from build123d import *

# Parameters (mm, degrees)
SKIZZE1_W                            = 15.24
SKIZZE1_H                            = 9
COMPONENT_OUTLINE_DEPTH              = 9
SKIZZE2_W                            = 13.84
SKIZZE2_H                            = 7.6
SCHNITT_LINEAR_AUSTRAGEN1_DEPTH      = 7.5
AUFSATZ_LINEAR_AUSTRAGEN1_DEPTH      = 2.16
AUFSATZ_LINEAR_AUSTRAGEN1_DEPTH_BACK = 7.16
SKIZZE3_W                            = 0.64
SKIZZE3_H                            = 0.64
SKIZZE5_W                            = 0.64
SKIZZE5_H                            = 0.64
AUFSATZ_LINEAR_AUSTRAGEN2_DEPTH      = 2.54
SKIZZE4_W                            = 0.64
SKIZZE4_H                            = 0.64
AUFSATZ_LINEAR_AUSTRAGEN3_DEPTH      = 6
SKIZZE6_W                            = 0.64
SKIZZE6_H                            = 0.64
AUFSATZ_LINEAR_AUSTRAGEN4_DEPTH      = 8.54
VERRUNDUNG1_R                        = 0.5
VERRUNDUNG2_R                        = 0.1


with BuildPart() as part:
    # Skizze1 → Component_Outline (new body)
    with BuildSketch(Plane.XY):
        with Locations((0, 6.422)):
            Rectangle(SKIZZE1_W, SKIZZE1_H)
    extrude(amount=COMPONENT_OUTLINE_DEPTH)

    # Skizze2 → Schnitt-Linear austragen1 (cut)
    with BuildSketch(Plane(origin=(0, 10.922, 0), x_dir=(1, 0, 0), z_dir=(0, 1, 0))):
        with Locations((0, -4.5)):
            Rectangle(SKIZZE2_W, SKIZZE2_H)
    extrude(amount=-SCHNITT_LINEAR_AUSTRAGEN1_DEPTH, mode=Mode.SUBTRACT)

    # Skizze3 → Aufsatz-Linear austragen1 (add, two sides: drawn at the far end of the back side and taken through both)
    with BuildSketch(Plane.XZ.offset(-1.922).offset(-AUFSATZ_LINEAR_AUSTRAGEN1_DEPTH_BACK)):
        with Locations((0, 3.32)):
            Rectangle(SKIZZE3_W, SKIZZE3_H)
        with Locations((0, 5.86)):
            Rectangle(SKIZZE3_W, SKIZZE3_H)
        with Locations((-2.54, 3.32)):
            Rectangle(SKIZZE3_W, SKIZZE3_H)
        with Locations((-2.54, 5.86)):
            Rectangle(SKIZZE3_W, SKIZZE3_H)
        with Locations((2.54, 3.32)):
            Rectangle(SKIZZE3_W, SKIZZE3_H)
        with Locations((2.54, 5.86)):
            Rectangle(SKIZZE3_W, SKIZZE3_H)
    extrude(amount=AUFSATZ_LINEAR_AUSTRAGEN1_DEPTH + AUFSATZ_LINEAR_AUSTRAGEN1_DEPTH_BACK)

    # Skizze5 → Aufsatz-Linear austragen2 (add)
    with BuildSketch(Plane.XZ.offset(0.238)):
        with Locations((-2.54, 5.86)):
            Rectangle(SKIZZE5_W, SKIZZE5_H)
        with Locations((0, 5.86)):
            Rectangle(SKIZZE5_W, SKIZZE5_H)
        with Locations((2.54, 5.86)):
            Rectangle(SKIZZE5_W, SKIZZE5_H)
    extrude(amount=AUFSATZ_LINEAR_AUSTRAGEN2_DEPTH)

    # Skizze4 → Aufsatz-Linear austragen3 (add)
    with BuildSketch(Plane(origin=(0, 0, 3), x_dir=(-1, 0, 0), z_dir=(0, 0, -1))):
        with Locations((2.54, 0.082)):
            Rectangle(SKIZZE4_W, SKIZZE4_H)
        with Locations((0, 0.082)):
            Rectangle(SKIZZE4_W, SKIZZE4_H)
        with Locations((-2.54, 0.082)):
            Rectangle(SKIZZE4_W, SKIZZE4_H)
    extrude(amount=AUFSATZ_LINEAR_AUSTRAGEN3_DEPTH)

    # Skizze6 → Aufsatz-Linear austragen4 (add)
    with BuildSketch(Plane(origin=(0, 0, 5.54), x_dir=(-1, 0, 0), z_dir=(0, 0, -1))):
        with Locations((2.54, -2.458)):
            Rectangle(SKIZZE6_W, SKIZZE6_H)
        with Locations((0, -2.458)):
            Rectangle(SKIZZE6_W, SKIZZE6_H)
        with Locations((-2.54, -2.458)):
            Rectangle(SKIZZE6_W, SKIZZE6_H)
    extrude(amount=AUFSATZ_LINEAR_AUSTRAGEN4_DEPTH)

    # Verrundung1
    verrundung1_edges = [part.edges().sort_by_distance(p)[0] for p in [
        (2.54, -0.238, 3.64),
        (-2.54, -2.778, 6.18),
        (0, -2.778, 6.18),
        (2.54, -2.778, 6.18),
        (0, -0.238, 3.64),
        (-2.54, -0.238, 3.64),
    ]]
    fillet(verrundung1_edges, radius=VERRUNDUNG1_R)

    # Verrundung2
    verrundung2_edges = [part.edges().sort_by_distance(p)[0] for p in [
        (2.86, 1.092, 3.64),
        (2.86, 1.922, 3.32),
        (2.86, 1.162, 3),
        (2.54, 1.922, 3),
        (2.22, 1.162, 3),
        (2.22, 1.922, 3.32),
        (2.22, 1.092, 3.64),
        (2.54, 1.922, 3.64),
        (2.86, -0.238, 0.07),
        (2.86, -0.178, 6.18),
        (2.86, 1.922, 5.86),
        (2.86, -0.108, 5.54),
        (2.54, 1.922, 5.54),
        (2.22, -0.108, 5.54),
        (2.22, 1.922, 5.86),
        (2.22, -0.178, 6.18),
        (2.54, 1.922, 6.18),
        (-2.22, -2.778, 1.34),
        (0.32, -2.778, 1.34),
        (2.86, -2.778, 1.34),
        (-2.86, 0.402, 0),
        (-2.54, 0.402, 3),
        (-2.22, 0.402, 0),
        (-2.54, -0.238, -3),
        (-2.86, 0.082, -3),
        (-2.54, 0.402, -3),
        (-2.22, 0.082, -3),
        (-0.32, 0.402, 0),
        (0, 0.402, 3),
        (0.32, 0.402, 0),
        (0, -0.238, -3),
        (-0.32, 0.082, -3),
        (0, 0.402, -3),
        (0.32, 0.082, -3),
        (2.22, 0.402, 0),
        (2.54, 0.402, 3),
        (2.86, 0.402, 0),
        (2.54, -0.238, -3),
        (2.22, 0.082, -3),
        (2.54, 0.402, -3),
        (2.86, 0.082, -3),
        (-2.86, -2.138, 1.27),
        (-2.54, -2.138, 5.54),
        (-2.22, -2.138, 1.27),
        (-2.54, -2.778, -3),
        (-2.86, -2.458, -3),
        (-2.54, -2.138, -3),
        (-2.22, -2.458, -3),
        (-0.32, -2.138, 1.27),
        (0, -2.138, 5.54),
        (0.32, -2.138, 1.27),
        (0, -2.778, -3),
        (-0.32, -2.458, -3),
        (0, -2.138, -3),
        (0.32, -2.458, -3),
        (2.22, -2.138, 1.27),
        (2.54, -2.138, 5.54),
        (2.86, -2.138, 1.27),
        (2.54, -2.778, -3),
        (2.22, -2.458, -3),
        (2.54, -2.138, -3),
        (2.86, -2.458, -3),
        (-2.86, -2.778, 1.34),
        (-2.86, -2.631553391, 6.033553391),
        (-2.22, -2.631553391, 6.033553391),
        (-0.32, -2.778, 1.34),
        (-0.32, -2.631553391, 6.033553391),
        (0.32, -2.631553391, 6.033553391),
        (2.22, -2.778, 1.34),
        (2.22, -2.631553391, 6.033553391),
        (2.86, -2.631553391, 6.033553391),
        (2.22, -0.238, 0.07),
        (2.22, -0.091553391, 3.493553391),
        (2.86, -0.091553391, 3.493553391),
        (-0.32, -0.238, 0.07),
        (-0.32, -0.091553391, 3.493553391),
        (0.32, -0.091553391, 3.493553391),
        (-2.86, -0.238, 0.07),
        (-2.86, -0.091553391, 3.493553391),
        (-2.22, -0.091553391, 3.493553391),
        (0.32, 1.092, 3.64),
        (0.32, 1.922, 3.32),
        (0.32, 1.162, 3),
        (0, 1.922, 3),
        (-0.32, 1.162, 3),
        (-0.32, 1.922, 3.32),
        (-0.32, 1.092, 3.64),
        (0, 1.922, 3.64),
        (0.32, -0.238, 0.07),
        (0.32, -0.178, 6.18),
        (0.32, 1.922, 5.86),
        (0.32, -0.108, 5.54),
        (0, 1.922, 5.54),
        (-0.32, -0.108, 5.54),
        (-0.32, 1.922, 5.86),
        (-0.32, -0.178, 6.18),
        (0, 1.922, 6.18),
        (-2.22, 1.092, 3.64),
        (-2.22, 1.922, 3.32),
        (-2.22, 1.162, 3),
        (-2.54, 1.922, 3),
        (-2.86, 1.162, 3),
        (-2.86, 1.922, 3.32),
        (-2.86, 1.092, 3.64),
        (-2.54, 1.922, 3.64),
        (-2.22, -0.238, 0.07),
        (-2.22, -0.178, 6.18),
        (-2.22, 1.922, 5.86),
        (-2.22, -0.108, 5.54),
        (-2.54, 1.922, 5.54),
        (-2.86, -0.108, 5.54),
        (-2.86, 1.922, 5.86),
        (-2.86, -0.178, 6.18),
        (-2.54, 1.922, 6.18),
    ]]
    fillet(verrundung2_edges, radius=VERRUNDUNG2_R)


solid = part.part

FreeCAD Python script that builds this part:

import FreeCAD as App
import Part
import Sketcher
from FreeCAD import Vector


def edges_at(feature, points):
    """Names of the edges that pass closest to the given points."""
    edges = feature.Shape.Edges
    near = lambda p: min(range(len(edges)), key=lambda i: edges[i].distToShape(Part.Vertex(*p))[0])
    return sorted({f"Edge{near(p) + 1}" for p in points})

doc = App.newDocument("Part")
body = doc.addObject("PartDesign::Body", "Body")

# Sketch on XY plane
sketch1 = body.newObject("Sketcher::SketchObject", "Sketch")
sketch1.AttachmentSupport = (doc.getObject("XY_Plane"), [""])
sketch1.MapMode = "FlatFace"
sketch1.addGeometry([
    Part.LineSegment(Vector(-8, 11, 0), Vector(-8, 2, 0)),
    Part.LineSegment(Vector(-8, 2, 0), Vector(8, 2, 0)),
    Part.LineSegment(Vector(8, 2, 0), Vector(8, 11, 0)),
    Part.LineSegment(Vector(8, 11, 0), Vector(-8, 11, 0)),
], False)
sketch1.addConstraint([
    Sketcher.Constraint("Coincident", 0, 2, 1, 1),
    Sketcher.Constraint("Coincident", 1, 2, 2, 1),
    Sketcher.Constraint("Coincident", 2, 2, 3, 1),
    Sketcher.Constraint("Coincident", 3, 2, 0, 1),
    Sketcher.Constraint("Vertical", 0),
    Sketcher.Constraint("Horizontal", 1),
    Sketcher.Constraint("Vertical", 2),
    Sketcher.Constraint("Horizontal", 3),
    Sketcher.Constraint("DistanceY", 0, 2, 0, 1, 9.0),
    Sketcher.Constraint("DistanceX", 1, 1, 1, 2, 15.24),
    Sketcher.Constraint("DistanceX", 0, 2, -1, 1, 7.62),
    Sketcher.Constraint("DistanceY", -1, 1, 0, 2, 1.922),
])
pad1 = body.newObject("PartDesign::Pad", "Pad")
pad1.Profile = sketch1
pad1.Length = 9

# Sketch on XZ plane
sketch2 = body.newObject("Sketcher::SketchObject", "Sketch001")
sketch2.AttachmentSupport = (doc.getObject("XZ_Plane"), [""])
sketch2.MapMode = "FlatFace"
sketch2.AttachmentOffset = App.Placement(Vector(0, 0, -10.922), App.Rotation())
sketch2.addGeometry([
    Part.LineSegment(Vector(-7, 1, 0), Vector(-7, 8, 0)),
    Part.LineSegment(Vector(-7, 8, 0), Vector(7, 8, 0)),
    Part.LineSegment(Vector(7, 8, 0), Vector(7, 1, 0)),
    Part.LineSegment(Vector(7, 1, 0), Vector(-7, 1, 0)),
], False)
sketch2.addConstraint([
    Sketcher.Constraint("Coincident", 0, 2, 1, 1),
    Sketcher.Constraint("Coincident", 1, 2, 2, 1),
    Sketcher.Constraint("Coincident", 2, 2, 3, 1),
    Sketcher.Constraint("Coincident", 3, 2, 0, 1),
    Sketcher.Constraint("Vertical", 0),
    Sketcher.Constraint("Horizontal", 1),
    Sketcher.Constraint("Vertical", 2),
    Sketcher.Constraint("Horizontal", 3),
    Sketcher.Constraint("DistanceY", 0, 1, 0, 2, 7.6),
    Sketcher.Constraint("DistanceX", 1, 1, 1, 2, 13.84),
    Sketcher.Constraint("DistanceY", -1, 1, 0, 2, 8.3),
    Sketcher.Constraint("DistanceX", 0, 2, -1, 1, 6.92),
])
pocket1 = body.newObject("PartDesign::Pocket", "Pocket")
pocket1.Profile = sketch2
pocket1.Length = 7.5
pocket1.Reversed = True

# Sketch on XZ plane
sketch3 = body.newObject("Sketcher::SketchObject", "Sketch002")
sketch3.AttachmentSupport = (doc.getObject("XZ_Plane"), [""])
sketch3.MapMode = "FlatFace"
sketch3.AttachmentOffset = App.Placement(Vector(0, 0, -1.922), App.Rotation())
sketch3.addGeometry([
    Part.LineSegment(Vector(-0.3, 3.6, 0), Vector(-0.3, 3, 0)),  # 0
    Part.LineSegment(Vector(-0.3, 3, 0), Vector(0.3, 3, 0)),  # 1
    Part.LineSegment(Vector(0.3, 3, 0), Vector(0.3, 3.6, 0)),  # 2
    Part.LineSegment(Vector(0.3, 3.6, 0), Vector(-0.3, 3.6, 0)),  # 3
    Part.LineSegment(Vector(-0.3, 6.2, 0), Vector(-0.3, 5.5, 0)),  # 4
    Part.LineSegment(Vector(-0.3, 5.5, 0), Vector(0.3, 5.5, 0)),  # 5
    Part.LineSegment(Vector(0.3, 5.5, 0), Vector(0.3, 6.2, 0)),  # 6
    Part.LineSegment(Vector(0.3, 6.2, 0), Vector(-0.3, 6.2, 0)),  # 7
    Part.LineSegment(Vector(-2.9, 3.6, 0), Vector(-2.9, 3, 0)),  # 8
    Part.LineSegment(Vector(-2.9, 3, 0), Vector(-2.2, 3, 0)),  # 9
    Part.LineSegment(Vector(-2.2, 3, 0), Vector(-2.2, 3.6, 0)),  # 10
    Part.LineSegment(Vector(-2.2, 3.6, 0), Vector(-2.9, 3.6, 0)),  # 11
    Part.LineSegment(Vector(-2.9, 6.2, 0), Vector(-2.9, 5.5, 0)),  # 12
    Part.LineSegment(Vector(-2.9, 5.5, 0), Vector(-2.2, 5.5, 0)),  # 13
    Part.LineSegment(Vector(-2.2, 5.5, 0), Vector(-2.2, 6.2, 0)),  # 14
    Part.LineSegment(Vector(-2.2, 6.2, 0), Vector(-2.9, 6.2, 0)),  # 15
    Part.LineSegment(Vector(2.2, 3.6, 0), Vector(2.2, 3, 0)),  # 16
    Part.LineSegment(Vector(2.2, 3, 0), Vector(2.9, 3, 0)),  # 17
    Part.LineSegment(Vector(2.9, 3, 0), Vector(2.9, 3.6, 0)),  # 18
    Part.LineSegment(Vector(2.9, 3.6, 0), Vector(2.2, 3.6, 0)),  # 19
    Part.LineSegment(Vector(2.2, 6.2, 0), Vector(2.2, 5.5, 0)),  # 20
    Part.LineSegment(Vector(2.2, 5.5, 0), Vector(2.9, 5.5, 0)),  # 21
    Part.LineSegment(Vector(2.9, 5.5, 0), Vector(2.9, 6.2, 0)),  # 22
    Part.LineSegment(Vector(2.9, 6.2, 0), Vector(2.2, 6.2, 0)),  # 23
], False)
sketch3.addConstraint([
    Sketcher.Constraint("Coincident", 0, 2, 1, 1),
    Sketcher.Constraint("Coincident", 1, 2, 2, 1),
    Sketcher.Constraint("Coincident", 2, 2, 3, 1),
    Sketcher.Constraint("Coincident", 3, 2, 0, 1),
    Sketcher.Constraint("Coincident", 4, 2, 5, 1),
    Sketcher.Constraint("Coincident", 5, 2, 6, 1),
    Sketcher.Constraint("Coincident", 6, 2, 7, 1),
    Sketcher.Constraint("Coincident", 7, 2, 4, 1),
    Sketcher.Constraint("Coincident", 8, 2, 9, 1),
    Sketcher.Constraint("Coincident", 9, 2, 10, 1),
    Sketcher.Constraint("Coincident", 10, 2, 11, 1),
    Sketcher.Constraint("Coincident", 11, 2, 8, 1),
    Sketcher.Constraint("Coincident", 12, 2, 13, 1),
    Sketcher.Constraint("Coincident", 13, 2, 14, 1),
    Sketcher.Constraint("Coincident", 14, 2, 15, 1),
    Sketcher.Constraint("Coincident", 15, 2, 12, 1),
    Sketcher.Constraint("Coincident", 16, 2, 17, 1),
    Sketcher.Constraint("Coincident", 17, 2, 18, 1),
    Sketcher.Constraint("Coincident", 18, 2, 19, 1),
    Sketcher.Constraint("Coincident", 19, 2, 16, 1),
    Sketcher.Constraint("Coincident", 20, 2, 21, 1),
    Sketcher.Constraint("Coincident", 21, 2, 22, 1),
    Sketcher.Constraint("Coincident", 22, 2, 23, 1),
    Sketcher.Constraint("Coincident", 23, 2, 20, 1),
    Sketcher.Constraint("Vertical", 0),
    Sketcher.Constraint("Horizontal", 1),
    Sketcher.Constraint("Vertical", 2),
    Sketcher.Constraint("Horizontal", 3),
    Sketcher.Constraint("Vertical", 4),
    Sketcher.Constraint("Horizontal", 5),
    Sketcher.Constraint("Vertical", 6),
    Sketcher.Constraint("Horizontal", 7),
    Sketcher.Constraint("Vertical", 8),
    Sketcher.Constraint("Horizontal", 9),
    Sketcher.Constraint("Vertical", 10),
    Sketcher.Constraint("Horizontal", 11),
    Sketcher.Constraint("Vertical", 12),
    Sketcher.Constraint("Horizontal", 13),
    Sketcher.Constraint("Vertical", 14),
    Sketcher.Constraint("Horizontal", 15),
    Sketcher.Constraint("Vertical", 16),
    Sketcher.Constraint("Horizontal", 17),
    Sketcher.Constraint("Vertical", 18),
    Sketcher.Constraint("Horizontal", 19),
    Sketcher.Constraint("Vertical", 20),
    Sketcher.Constraint("Horizontal", 21),
    Sketcher.Constraint("Vertical", 22),
    Sketcher.Constraint("Horizontal", 23),
    Sketcher.Constraint("Symmetric", 9, 2, 16, 2, -2),
    Sketcher.Constraint("Symmetric", 11, 2, 18, 2, -2),
    Sketcher.Constraint("Symmetric", 13, 2, 20, 2, -2),
    Sketcher.Constraint("Symmetric", 15, 2, 22, 2, -2),
    Sketcher.Constraint("Horizontal", 1, 2, 8, 2),
    Sketcher.Constraint("Horizontal", 3, 2, 10, 2),
    Sketcher.Constraint("Horizontal", 5, 2, 12, 2),
    Sketcher.Constraint("Horizontal", 7, 2, 14, 2),
    Sketcher.Constraint("Vertical", 3, 2, 4, 2),
    Sketcher.Constraint("Vertical", 2, 2, 5, 2),
    Sketcher.Constraint("Vertical", 11, 2, 12, 2),
    Sketcher.Constraint("Vertical", 10, 2, 13, 2),
    Sketcher.Constraint("Equal", 7, 9),
    Sketcher.Constraint("Equal", 23, 0),
    Sketcher.Constraint("Equal", 2, 4),
    Sketcher.Constraint("DistanceY", -1, 1, 0, 2, 3.0),
    Sketcher.Constraint("DistanceX", 1, 1, 1, 2, 0.64),
    Sketcher.Constraint("DistanceY", 3, 2, 4, 2, 1.9),
    Sketcher.Constraint("DistanceX", 9, 2, 0, 2, 1.9),
    Sketcher.Constraint("DistanceX", 1, 2, 16, 2, 1.9),
])
pad2 = body.newObject("PartDesign::Pad", "Pad001")
pad2.Profile = sketch3
pad2.Type = "TwoLengths"
pad2.Length = 2.16
pad2.Length2 = 7.16

# Sketch on XZ plane
sketch4 = body.newObject("Sketcher::SketchObject", "Sketch003")
sketch4.AttachmentSupport = (doc.getObject("XZ_Plane"), [""])
sketch4.MapMode = "FlatFace"
sketch4.AttachmentOffset = App.Placement(Vector(0, 0, 0.238), App.Rotation())
sketch4.addGeometry([
    Part.LineSegment(Vector(-2.9, 6.2, 0), Vector(-2.9, 5.5, 0)),  # 0
    Part.LineSegment(Vector(-2.9, 5.5, 0), Vector(-2.2, 5.5, 0)),  # 1
    Part.LineSegment(Vector(-2.2, 5.5, 0), Vector(-2.2, 6.2, 0)),  # 2
    Part.LineSegment(Vector(-2.2, 6.2, 0), Vector(-2.9, 6.2, 0)),  # 3
    Part.LineSegment(Vector(-0.3, 6.2, 0), Vector(-0.3, 5.5, 0)),  # 4
    Part.LineSegment(Vector(-0.3, 5.5, 0), Vector(0.3, 5.5, 0)),  # 5
    Part.LineSegment(Vector(0.3, 5.5, 0), Vector(0.3, 6.2, 0)),  # 6
    Part.LineSegment(Vector(0.3, 6.2, 0), Vector(-0.3, 6.2, 0)),  # 7
    Part.LineSegment(Vector(2.2, 6.2, 0), Vector(2.2, 5.5, 0)),  # 8
    Part.LineSegment(Vector(2.2, 5.5, 0), Vector(2.9, 5.5, 0)),  # 9
    Part.LineSegment(Vector(2.9, 5.5, 0), Vector(2.9, 6.2, 0)),  # 10
    Part.LineSegment(Vector(2.9, 6.2, 0), Vector(2.2, 6.2, 0)),  # 11
], False)
sketch4.addConstraint([
    Sketcher.Constraint("Coincident", 0, 2, 1, 1),
    Sketcher.Constraint("Coincident", 1, 2, 2, 1),
    Sketcher.Constraint("Coincident", 2, 2, 3, 1),
    Sketcher.Constraint("Coincident", 3, 2, 0, 1),
    Sketcher.Constraint("Coincident", 4, 2, 5, 1),
    Sketcher.Constraint("Coincident", 5, 2, 6, 1),
    Sketcher.Constraint("Coincident", 6, 2, 7, 1),
    Sketcher.Constraint("Coincident", 7, 2, 4, 1),
    Sketcher.Constraint("Coincident", 8, 2, 9, 1),
    Sketcher.Constraint("Coincident", 9, 2, 10, 1),
    Sketcher.Constraint("Coincident", 10, 2, 11, 1),
    Sketcher.Constraint("Coincident", 11, 2, 8, 1),
    Sketcher.Constraint("Vertical", 0),
    Sketcher.Constraint("Horizontal", 1),
    Sketcher.Constraint("Vertical", 2),
    Sketcher.Constraint("Horizontal", 3),
    Sketcher.Constraint("Vertical", 4),
    Sketcher.Constraint("Horizontal", 5),
    Sketcher.Constraint("Vertical", 6),
    Sketcher.Constraint("Horizontal", 7),
    Sketcher.Constraint("Vertical", 8),
    Sketcher.Constraint("Horizontal", 9),
    Sketcher.Constraint("Vertical", 10),
    Sketcher.Constraint("Horizontal", 11),
    Sketcher.Constraint("Symmetric", 1, 2, 8, 2, -2),
    Sketcher.Constraint("Symmetric", 3, 2, 10, 2, -2),
    Sketcher.Constraint("Horizontal", 1, 2, 4, 2),
    Sketcher.Constraint("Horizontal", 3, 2, 6, 2),
    Sketcher.Constraint("Equal", 3, 5),
    Sketcher.Constraint("Equal", 11, 0),
    Sketcher.Constraint("DistanceX", 1, 1, 1, 2, 0.64),
    Sketcher.Constraint("DistanceX", 1, 2, 4, 2, 1.9),
    Sketcher.Constraint("DistanceX", 5, 2, 8, 2, 1.9),
    Sketcher.Constraint("DistanceY", -1, 1, 0, 2, 5.54),
])
pad3 = body.newObject("PartDesign::Pad", "Pad002")
pad3.Profile = sketch4
pad3.Length = 2.54

# Sketch on XY plane
sketch5 = body.newObject("Sketcher::SketchObject", "Sketch004")
sketch5.AttachmentSupport = (doc.getObject("XY_Plane"), [""])
sketch5.MapMode = "FlatFace"
sketch5.AttachmentOffset = App.Placement(Vector(0, 0, 3), App.Rotation())
sketch5.addGeometry([
    Part.LineSegment(Vector(-2.2, 0.4, 0), Vector(-2.2, -0.2, 0)),  # 0
    Part.LineSegment(Vector(-2.2, -0.2, 0), Vector(-2.9, -0.2, 0)),  # 1
    Part.LineSegment(Vector(-2.9, -0.2, 0), Vector(-2.9, 0.4, 0)),  # 2
    Part.LineSegment(Vector(-2.9, 0.4, 0), Vector(-2.2, 0.4, 0)),  # 3
    Part.LineSegment(Vector(0.3, 0.4, 0), Vector(0.3, -0.2, 0)),  # 4
    Part.LineSegment(Vector(0.3, -0.2, 0), Vector(-0.3, -0.2, 0)),  # 5
    Part.LineSegment(Vector(-0.3, -0.2, 0), Vector(-0.3, 0.4, 0)),  # 6
    Part.LineSegment(Vector(-0.3, 0.4, 0), Vector(0.3, 0.4, 0)),  # 7
    Part.LineSegment(Vector(2.9, 0.4, 0), Vector(2.9, -0.2, 0)),  # 8
    Part.LineSegment(Vector(2.9, -0.2, 0), Vector(2.2, -0.2, 0)),  # 9
    Part.LineSegment(Vector(2.2, -0.2, 0), Vector(2.2, 0.4, 0)),  # 10
    Part.LineSegment(Vector(2.2, 0.4, 0), Vector(2.9, 0.4, 0)),  # 11
], False)
sketch5.addConstraint([
    Sketcher.Constraint("Coincident", 0, 2, 1, 1),
    Sketcher.Constraint("Coincident", 1, 2, 2, 1),
    Sketcher.Constraint("Coincident", 2, 2, 3, 1),
    Sketcher.Constraint("Coincident", 3, 2, 0, 1),
    Sketcher.Constraint("Coincident", 4, 2, 5, 1),
    Sketcher.Constraint("Coincident", 5, 2, 6, 1),
    Sketcher.Constraint("Coincident", 6, 2, 7, 1),
    Sketcher.Constraint("Coincident", 7, 2, 4, 1),
    Sketcher.Constraint("Coincident", 8, 2, 9, 1),
    Sketcher.Constraint("Coincident", 9, 2, 10, 1),
    Sketcher.Constraint("Coincident", 10, 2, 11, 1),
    Sketcher.Constraint("Coincident", 11, 2, 8, 1),
    Sketcher.Constraint("Vertical", 0),
    Sketcher.Constraint("Horizontal", 1),
    Sketcher.Constraint("Vertical", 2),
    Sketcher.Constraint("Horizontal", 3),
    Sketcher.Constraint("Vertical", 4),
    Sketcher.Constraint("Horizontal", 5),
    Sketcher.Constraint("Vertical", 6),
    Sketcher.Constraint("Horizontal", 7),
    Sketcher.Constraint("Vertical", 8),
    Sketcher.Constraint("Horizontal", 9),
    Sketcher.Constraint("Vertical", 10),
    Sketcher.Constraint("Horizontal", 11),
    Sketcher.Constraint("Symmetric", 1, 2, 8, 2, -2),
    Sketcher.Constraint("Symmetric", 3, 2, 10, 2, -2),
    Sketcher.Constraint("Horizontal", 1, 2, 4, 2),
    Sketcher.Constraint("Horizontal", 3, 2, 6, 2),
    Sketcher.Constraint("Equal", 3, 5),
    Sketcher.Constraint("Equal", 11, 0),
    Sketcher.Constraint("DistanceX", 1, 2, 1, 1, 0.64),
    Sketcher.Constraint("DistanceX", 0, 2, 5, 2, 1.9),
    Sketcher.Constraint("DistanceX", 4, 2, 9, 2, 1.9),
    Sketcher.Constraint("DistanceY", 0, 2, -1, 1, 0.238),
])
pad4 = body.newObject("PartDesign::Pad", "Pad003")
pad4.Profile = sketch5
pad4.Length = 6
pad4.Reversed = True

# Sketch on XY plane
sketch6 = body.newObject("Sketcher::SketchObject", "Sketch005")
sketch6.AttachmentSupport = (doc.getObject("XY_Plane"), [""])
sketch6.MapMode = "FlatFace"
sketch6.AttachmentOffset = App.Placement(Vector(0, 0, 5.54), App.Rotation())
sketch6.addGeometry([
    Part.LineSegment(Vector(-2.2, -2.1, 0), Vector(-2.2, -2.8, 0)),  # 0
    Part.LineSegment(Vector(-2.2, -2.8, 0), Vector(-2.9, -2.8, 0)),  # 1
    Part.LineSegment(Vector(-2.9, -2.8, 0), Vector(-2.9, -2.1, 0)),  # 2
    Part.LineSegment(Vector(-2.9, -2.1, 0), Vector(-2.2, -2.1, 0)),  # 3
    Part.LineSegment(Vector(0.3, -2.1, 0), Vector(0.3, -2.8, 0)),  # 4
    Part.LineSegment(Vector(0.3, -2.8, 0), Vector(-0.3, -2.8, 0)),  # 5
    Part.LineSegment(Vector(-0.3, -2.8, 0), Vector(-0.3, -2.1, 0)),  # 6
    Part.LineSegment(Vector(-0.3, -2.1, 0), Vector(0.3, -2.1, 0)),  # 7
    Part.LineSegment(Vector(2.9, -2.1, 0), Vector(2.9, -2.8, 0)),  # 8
    Part.LineSegment(Vector(2.9, -2.8, 0), Vector(2.2, -2.8, 0)),  # 9
    Part.LineSegment(Vector(2.2, -2.8, 0), Vector(2.2, -2.1, 0)),  # 10
    Part.LineSegment(Vector(2.2, -2.1, 0), Vector(2.9, -2.1, 0)),  # 11
], False)
sketch6.addConstraint([
    Sketcher.Constraint("Coincident", 0, 2, 1, 1),
    Sketcher.Constraint("Coincident", 1, 2, 2, 1),
    Sketcher.Constraint("Coincident", 2, 2, 3, 1),
    Sketcher.Constraint("Coincident", 3, 2, 0, 1),
    Sketcher.Constraint("Coincident", 4, 2, 5, 1),
    Sketcher.Constraint("Coincident", 5, 2, 6, 1),
    Sketcher.Constraint("Coincident", 6, 2, 7, 1),
    Sketcher.Constraint("Coincident", 7, 2, 4, 1),
    Sketcher.Constraint("Coincident", 8, 2, 9, 1),
    Sketcher.Constraint("Coincident", 9, 2, 10, 1),
    Sketcher.Constraint("Coincident", 10, 2, 11, 1),
    Sketcher.Constraint("Coincident", 11, 2, 8, 1),
    Sketcher.Constraint("Vertical", 0),
    Sketcher.Constraint("Horizontal", 1),
    Sketcher.Constraint("Vertical", 2),
    Sketcher.Constraint("Horizontal", 3),
    Sketcher.Constraint("Vertical", 4),
    Sketcher.Constraint("Horizontal", 5),
    Sketcher.Constraint("Vertical", 6),
    Sketcher.Constraint("Horizontal", 7),
    Sketcher.Constraint("Vertical", 8),
    Sketcher.Constraint("Horizontal", 9),
    Sketcher.Constraint("Vertical", 10),
    Sketcher.Constraint("Horizontal", 11),
    Sketcher.Constraint("Symmetric", 1, 2, 8, 2, -2),
    Sketcher.Constraint("Symmetric", 3, 2, 10, 2, -2),
    Sketcher.Constraint("Horizontal", 1, 2, 4, 2),
    Sketcher.Constraint("Horizontal", 3, 2, 6, 2),
    Sketcher.Constraint("Equal", 3, 5),
    Sketcher.Constraint("Equal", 11, 0),
    Sketcher.Constraint("DistanceX", 1, 2, 1, 1, 0.64),
    Sketcher.Constraint("DistanceX", 0, 2, 5, 2, 1.9),
    Sketcher.Constraint("DistanceX", 4, 2, 9, 2, 1.9),
    Sketcher.Constraint("DistanceY", 0, 2, -1, 1, 2.778),
])
pad5 = body.newObject("PartDesign::Pad", "Pad004")
pad5.Profile = sketch6
pad5.Length = 8.54
pad5.Reversed = True
doc.recompute()

fillet = body.newObject("PartDesign::Fillet", "Fillet")
fillet.Base = (pad5, edges_at(pad5, [
    (2.54, -0.238, 3.64),
    (-2.54, -2.778, 6.18),
    (0, -2.778, 6.18),
    (2.54, -2.778, 6.18),
    (0, -0.238, 3.64),
    (-2.54, -0.238, 3.64),
]))
fillet.Radius = 0.5
doc.recompute()

fillet2 = body.newObject("PartDesign::Fillet", "Fillet001")
fillet2.Base = (fillet, edges_at(fillet, [
    (2.86, 1.092, 3.64),
    (2.86, 1.922, 3.32),
    (2.86, 1.162, 3),
    (2.54, 1.922, 3),
    (2.22, 1.162, 3),
    (2.22, 1.922, 3.32),
    (2.22, 1.092, 3.64),
    (2.54, 1.922, 3.64),
    (2.86, -0.238, 0.07),
    (2.86, -0.178, 6.18),
    (2.86, 1.922, 5.86),
    (2.86, -0.108, 5.54),
    (2.54, 1.922, 5.54),
    (2.22, -0.108, 5.54),
    (2.22, 1.922, 5.86),
    (2.22, -0.178, 6.18),
    (2.54, 1.922, 6.18),
    (-2.22, -2.778, 1.34),
    (0.32, -2.778, 1.34),
    (2.86, -2.778, 1.34),
    (-2.86, 0.402, 0),
    (-2.54, 0.402, 3),
    (-2.22, 0.402, 0),
    (-2.54, -0.238, -3),
    (-2.86, 0.082, -3),
    (-2.54, 0.402, -3),
    (-2.22, 0.082, -3),
    (-0.32, 0.402, 0),
    (0, 0.402, 3),
    (0.32, 0.402, 0),
    (0, -0.238, -3),
    (-0.32, 0.082, -3),
    (0, 0.402, -3),
    (0.32, 0.082, -3),
    (2.22, 0.402, 0),
    (2.54, 0.402, 3),
    (2.86, 0.402, 0),
    (2.54, -0.238, -3),
    (2.22, 0.082, -3),
    (2.54, 0.402, -3),
    (2.86, 0.082, -3),
    (-2.86, -2.138, 1.27),
    (-2.54, -2.138, 5.54),
    (-2.22, -2.138, 1.27),
    (-2.54, -2.778, -3),
    (-2.86, -2.458, -3),
    (-2.54, -2.138, -3),
    (-2.22, -2.458, -3),
    (-0.32, -2.138, 1.27),
    (0, -2.138, 5.54),
    (0.32, -2.138, 1.27),
    (0, -2.778, -3),
    (-0.32, -2.458, -3),
    (0, -2.138, -3),
    (0.32, -2.458, -3),
    (2.22, -2.138, 1.27),
    (2.54, -2.138, 5.54),
    (2.86, -2.138, 1.27),
    (2.54, -2.778, -3),
    (2.22, -2.458, -3),
    (2.54, -2.138, -3),
    (2.86, -2.458, -3),
    (-2.86, -2.778, 1.34),
    (-2.86, -2.632, 6.034),
    (-2.22, -2.632, 6.034),
    (-0.32, -2.778, 1.34),
    (-0.32, -2.632, 6.034),
    (0.32, -2.632, 6.034),
    (2.22, -2.778, 1.34),
    (2.22, -2.632, 6.034),
    (2.86, -2.632, 6.034),
    (2.22, -0.238, 0.07),
    (2.22, -0.092, 3.494),
    (2.86, -0.092, 3.494),
    (-0.32, -0.238, 0.07),
    (-0.32, -0.092, 3.494),
    (0.32, -0.092, 3.494),
    (-2.86, -0.238, 0.07),
    (-2.86, -0.092, 3.494),
    (-2.22, -0.092, 3.494),
    (0.32, 1.092, 3.64),
    (0.32, 1.922, 3.32),
    (0.32, 1.162, 3),
    (0, 1.922, 3),
    (-0.32, 1.162, 3),
    (-0.32, 1.922, 3.32),
    (-0.32, 1.092, 3.64),
    (0, 1.922, 3.64),
    (0.32, -0.238, 0.07),
    (0.32, -0.178, 6.18),
    (0.32, 1.922, 5.86),
    (0.32, -0.108, 5.54),
    (0, 1.922, 5.54),
    (-0.32, -0.108, 5.54),
    (-0.32, 1.922, 5.86),
    (-0.32, -0.178, 6.18),
    (0, 1.922, 6.18),
    (-2.22, 1.092, 3.64),
    (-2.22, 1.922, 3.32),
    (-2.22, 1.162, 3),
    (-2.54, 1.922, 3),
    (-2.86, 1.162, 3),
    (-2.86, 1.922, 3.32),
    (-2.86, 1.092, 3.64),
    (-2.54, 1.922, 3.64),
    (-2.22, -0.238, 0.07),
    (-2.22, -0.178, 6.18),
    (-2.22, 1.922, 5.86),
    (-2.22, -0.108, 5.54),
    (-2.54, 1.922, 5.54),
    (-2.86, -0.108, 5.54),
    (-2.86, 1.922, 5.86),
    (-2.86, -0.178, 6.18),
    (-2.54, 1.922, 6.18),
]))
fillet2.Radius = 0.1

doc.recompute()
